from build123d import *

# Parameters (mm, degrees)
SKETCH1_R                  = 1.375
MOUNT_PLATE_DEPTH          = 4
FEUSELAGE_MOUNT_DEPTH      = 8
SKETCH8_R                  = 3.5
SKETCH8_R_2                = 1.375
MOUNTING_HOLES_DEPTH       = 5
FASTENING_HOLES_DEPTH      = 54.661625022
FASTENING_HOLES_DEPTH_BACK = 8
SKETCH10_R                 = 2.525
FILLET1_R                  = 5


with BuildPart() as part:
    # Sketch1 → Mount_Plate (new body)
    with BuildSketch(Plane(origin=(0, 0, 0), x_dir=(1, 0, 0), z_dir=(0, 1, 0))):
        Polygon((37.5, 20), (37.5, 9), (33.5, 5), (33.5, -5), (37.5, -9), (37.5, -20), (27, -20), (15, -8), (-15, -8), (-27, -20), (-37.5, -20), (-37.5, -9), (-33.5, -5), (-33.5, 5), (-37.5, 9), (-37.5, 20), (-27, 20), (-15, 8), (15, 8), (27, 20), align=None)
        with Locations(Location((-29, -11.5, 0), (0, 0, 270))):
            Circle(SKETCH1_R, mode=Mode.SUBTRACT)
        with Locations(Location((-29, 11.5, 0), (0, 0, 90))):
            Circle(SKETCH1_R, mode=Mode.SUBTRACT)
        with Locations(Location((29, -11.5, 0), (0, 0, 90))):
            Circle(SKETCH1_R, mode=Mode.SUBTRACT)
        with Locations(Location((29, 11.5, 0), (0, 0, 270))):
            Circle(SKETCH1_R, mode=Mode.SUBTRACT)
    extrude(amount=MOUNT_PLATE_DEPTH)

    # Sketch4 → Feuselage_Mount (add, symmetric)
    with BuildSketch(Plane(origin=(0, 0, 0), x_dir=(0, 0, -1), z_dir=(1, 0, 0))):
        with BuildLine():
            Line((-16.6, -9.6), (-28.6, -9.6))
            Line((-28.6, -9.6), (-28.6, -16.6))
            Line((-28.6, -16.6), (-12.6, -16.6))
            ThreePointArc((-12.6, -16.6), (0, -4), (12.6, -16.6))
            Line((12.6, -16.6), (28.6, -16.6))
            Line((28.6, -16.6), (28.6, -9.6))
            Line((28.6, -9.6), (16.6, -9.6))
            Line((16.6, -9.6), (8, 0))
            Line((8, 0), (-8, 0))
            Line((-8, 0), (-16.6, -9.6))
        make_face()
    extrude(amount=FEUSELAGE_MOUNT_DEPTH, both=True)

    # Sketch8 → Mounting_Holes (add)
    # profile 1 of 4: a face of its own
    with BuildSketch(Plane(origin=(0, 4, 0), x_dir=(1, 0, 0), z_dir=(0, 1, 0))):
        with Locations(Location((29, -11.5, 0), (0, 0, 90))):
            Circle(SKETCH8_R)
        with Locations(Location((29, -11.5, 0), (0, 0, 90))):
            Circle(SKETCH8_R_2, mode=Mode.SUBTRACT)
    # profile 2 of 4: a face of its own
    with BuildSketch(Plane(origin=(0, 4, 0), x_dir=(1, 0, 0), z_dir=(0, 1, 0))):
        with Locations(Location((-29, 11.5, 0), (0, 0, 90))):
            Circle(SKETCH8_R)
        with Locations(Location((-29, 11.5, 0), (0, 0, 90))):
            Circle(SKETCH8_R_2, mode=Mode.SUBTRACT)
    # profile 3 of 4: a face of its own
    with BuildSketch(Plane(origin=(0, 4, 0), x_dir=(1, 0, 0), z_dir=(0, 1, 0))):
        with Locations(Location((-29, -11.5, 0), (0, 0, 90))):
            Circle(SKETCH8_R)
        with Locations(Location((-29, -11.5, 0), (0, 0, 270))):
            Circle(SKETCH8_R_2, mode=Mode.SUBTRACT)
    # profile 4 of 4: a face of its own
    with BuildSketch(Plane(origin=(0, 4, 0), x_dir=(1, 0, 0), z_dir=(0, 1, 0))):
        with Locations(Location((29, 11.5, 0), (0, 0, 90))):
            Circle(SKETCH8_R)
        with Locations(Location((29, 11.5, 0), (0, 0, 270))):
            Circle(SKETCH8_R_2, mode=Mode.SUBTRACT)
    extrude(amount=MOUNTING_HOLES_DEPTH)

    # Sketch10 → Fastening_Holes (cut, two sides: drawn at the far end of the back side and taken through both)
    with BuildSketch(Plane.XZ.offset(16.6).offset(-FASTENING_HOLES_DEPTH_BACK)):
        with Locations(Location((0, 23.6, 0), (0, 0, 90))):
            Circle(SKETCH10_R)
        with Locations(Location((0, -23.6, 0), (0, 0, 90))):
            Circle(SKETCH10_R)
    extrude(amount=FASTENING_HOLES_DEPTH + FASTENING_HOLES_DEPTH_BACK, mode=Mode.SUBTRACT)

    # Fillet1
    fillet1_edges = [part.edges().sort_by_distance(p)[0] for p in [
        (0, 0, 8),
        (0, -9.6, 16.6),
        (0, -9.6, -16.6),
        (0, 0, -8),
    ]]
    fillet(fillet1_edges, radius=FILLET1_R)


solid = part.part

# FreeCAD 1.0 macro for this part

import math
import FreeCAD as App
import Part
import Sketcher
from FreeCAD import Vector


def edges_at(feature, points):
    """Names of the edges that pass closest to the given points."""
    edges = feature.Shape.Edges
    near = lambda p: min(range(len(edges)), key=lambda i: edges[i].distToShape(Part.Vertex(*p))[0])
    return sorted({f"Edge{near(p) + 1}" for p in points})

doc = App.newDocument("Part")
body = doc.addObject("PartDesign::Body", "Body")

# Sketch on XZ plane
sketch1 = body.newObject("Sketcher::SketchObject", "Sketch")
sketch1.AttachmentSupport = (doc.getObject("XZ_Plane"), [""])
sketch1.MapMode = "FlatFace"
sketch1.addGeometry([
    Part.LineSegment(Vector(37.5, -9, 0), Vector(37.5, -20, 0)),  # 0
    Part.LineSegment(Vector(37.5, -20, 0), Vector(27, -20, 0)),  # 1
    Part.LineSegment(Vector(27, -20, 0), Vector(15, -8, 0)),  # 2
    Part.LineSegment(Vector(15, -8, 0), Vector(-15, -8, 0)),  # 3
    Part.LineSegment(Vector(-15, -8, 0), Vector(-27, -20, 0)),  # 4
    Part.LineSegment(Vector(-27, -20, 0), Vector(-37.5, -20, 0)),  # 5
    Part.LineSegment(Vector(-37.5, -20, 0), Vector(-37.5, -9, 0)),  # 6
    Part.LineSegment(Vector(-37.5, -9, 0), Vector(-33.5, -5, 0)),  # 7
    Part.LineSegment(Vector(-33.5, -5, 0), Vector(-33.5, 5, 0)),  # 8
    Part.LineSegment(Vector(-33.5, 5, 0), Vector(-37.5, 9, 0)),  # 9
    Part.LineSegment(Vector(-37.5, 9, 0), Vector(-37.5, 20, 0)),  # 10
    Part.LineSegment(Vector(-37.5, 20, 0), Vector(-27, 20, 0)),  # 11
    Part.LineSegment(Vector(-27, 20, 0), Vector(-15, 8, 0)),  # 12
    Part.LineSegment(Vector(-15, 8, 0), Vector(15, 8, 0)),  # 13
    Part.LineSegment(Vector(15, 8, 0), Vector(27, 20, 0)),  # 14
    Part.LineSegment(Vector(27, 20, 0), Vector(37.5, 20, 0)),  # 15
    Part.LineSegment(Vector(37.5, 20, 0), Vector(37.5, 9, 0)),  # 16
    Part.LineSegment(Vector(37.5, 9, 0), Vector(33.5, 5, 0)),  # 17
    Part.LineSegment(Vector(33.5, 5, 0), Vector(33.5, -5, 0)),  # 18
    Part.LineSegment(Vector(33.5, -5, 0), Vector(37.5, -9, 0)),  # 19
    Part.Circle(Vector(29, 11.5, 0), Vector(0, 0, 1), 1.4),  # 20
    Part.Circle(Vector(-29, 11.5, 0), Vector(0, 0, 1), 1.4),  # 21
    Part.Circle(Vector(29, -11.5, 0), Vector(0, 0, 1), 1.4),  # 22
    Part.Circle(Vector(-29, -11.5, 0), Vector(0, 0, 1), 1.4),  # 23
], False)
sketch1.addConstraint([
    Sketcher.Constraint("Coincident", 0, 2, 1, 1),
    Sketcher.Constraint("Coincident", 1, 2, 2, 1),
    Sketcher.Constraint("Coincident", 2, 2, 3, 1),
    Sketcher.Constraint("Coincident", 3, 2, 4, 1),
    Sketcher.Constraint("Coincident", 4, 2, 5, 1),
    Sketcher.Constraint("Coincident", 5, 2, 6, 1),
    Sketcher.Constraint("Coincident", 6, 2, 7, 1),
    Sketcher.Constraint("Coincident", 7, 2, 8, 1),
    Sketcher.Constraint("Coincident", 8, 2, 9, 1),
    Sketcher.Constraint("Coincident", 9, 2, 10, 1),
    Sketcher.Constraint("Coincident", 10, 2, 11, 1),
    Sketcher.Constraint("Coincident", 11, 2, 12, 1),
    Sketcher.Constraint("Coincident", 12, 2, 13, 1),
    Sketcher.Constraint("Coincident", 13, 2, 14, 1),
    Sketcher.Constraint("Coincident", 14, 2, 15, 1),
    Sketcher.Constraint("Coincident", 15, 2, 16, 1),
    Sketcher.Constraint("Coincident", 16, 2, 17, 1),
    Sketcher.Constraint("Coincident", 17, 2, 18, 1),
    Sketcher.Constraint("Coincident", 18, 2, 19, 1),
    Sketcher.Constraint("Coincident", 19, 2, 0, 1),
    Sketcher.Constraint("Vertical", 0),
    Sketcher.Constraint("Horizontal", 1),
    Sketcher.Constraint("Horizontal", 3),
    Sketcher.Constraint("Horizontal", 5),
    Sketcher.Constraint("Vertical", 6),
    Sketcher.Constraint("Vertical", 8),
    Sketcher.Constraint("Vertical", 10),
    Sketcher.Constraint("Horizontal", 11),
    Sketcher.Constraint("Horizontal", 13),
    Sketcher.Constraint("Horizontal", 15),
    Sketcher.Constraint("Vertical", 16),
    Sketcher.Constraint("Vertical", 18),
    Sketcher.Constraint("Equal", 20, 21),
    Sketcher.Constraint("Equal", 21, 22),
    Sketcher.Constraint("Equal", 22, 23),
    Sketcher.Constraint("Symmetric", 21, 3, 22, 3, -1, 1),
    Sketcher.Constraint("Symmetric", 20, 3, 23, 3, -1, 1),
    Sketcher.Constraint("Symmetric", 0, 2, 10, 2, -1, 1),
    Sketcher.Constraint("Symmetric", 2, 2, 12, 2, -1, 1),
    Sketcher.Constraint("Symmetric", 4, 2, 14, 2, -1, 1),
    Sketcher.Constraint("Symmetric", 6, 2, 16, 2, -1, 1),
    Sketcher.Constraint("Symmetric", 7, 2, 17, 2, -1, 1),
    Sketcher.Constraint("Symmetric", 20, 3, 21, 3, -2),
    Sketcher.Constraint("Symmetric", 1, 2, 4, 2, -2),
    Sketcher.Constraint("Symmetric", 9, 2, 16, 2, -2),
    Sketcher.Constraint("Perpendicular", 2, 4),
    Sketcher.Constraint("Parallel", 4, 7),
    Sketcher.Constraint("Perpendicular", 7, 9),
    Sketcher.Constraint("Parallel", 9, 12),
    Sketcher.Constraint("Perpendicular", 12, 14),
    Sketcher.Constraint("Perpendicular", 17, 19),
    Sketcher.Constraint("Horizontal", 8, 2, 17, 2),
    Sketcher.Constraint("Horizontal", 7, 2, 18, 2),
    Sketcher.Constraint("Diameter", 20, 2.75),
    Sketcher.Constraint("DistanceX", 3, 2, 3, 1, 30.0),
    Sketcher.Constraint("DistanceY", 0, 2, 0, 1, 11.0),
    Sketcher.Constraint("DistanceY", 8, 1, 8, 2, 10.0),
    Sketcher.Constraint("DistanceX", 1, 2, 1, 1, 10.5),
    Sketcher.Constraint("DistanceX", -1, 1, 20, 3, 29.0),
    Sketcher.Constraint("DistanceY", 0, 2, -1, 1, 20.0),
    Sketcher.Constraint("DistanceX", -1, 1, 1, 2, 27.0),
    Sketcher.Constraint("DistanceY", 22, 3, 20, 3, 23.0),
])
pad1 = body.newObject("PartDesign::Pad", "Pad")
pad1.Profile = sketch1
pad1.Length = 4
pad1.Reversed = True

# Sketch on YZ plane
sketch2 = body.newObject("Sketcher::SketchObject", "Sketch001")
sketch2.AttachmentSupport = (doc.getObject("YZ_Plane"), [""])
sketch2.MapMode = "FlatFace"
sketch2.addGeometry([
    Part.LineSegment(Vector(-10, 17, 0), Vector(-10, 29, 0)),  # 0
    Part.LineSegment(Vector(-10, 29, 0), Vector(-17, 29, 0)),  # 1
    Part.LineSegment(Vector(-17, 29, 0), Vector(-17, 13, 0)),  # 2
    Part.ArcOfCircle(Part.Circle(Vector(-17, 0, 0), Vector(0, 0, 1), 13), math.radians(-90), math.radians(90)),  # 3
    Part.LineSegment(Vector(-17, -13, 0), Vector(-17, -29, 0)),  # 4
    Part.LineSegment(Vector(-17, -29, 0), Vector(-10, -29, 0)),  # 5
    Part.LineSegment(Vector(-10, -29, 0), Vector(-10, -17, 0)),  # 6
    Part.LineSegment(Vector(-10, -17, 0), Vector(0, -8, 0)),  # 7
    Part.LineSegment(Vector(0, -8, 0), Vector(0, 8, 0)),  # 8
    Part.LineSegment(Vector(0, 8, 0), Vector(-10, 17, 0)),  # 9
], False)
sketch2.addConstraint([
    Sketcher.Constraint("Coincident", 0, 2, 1, 1),
    Sketcher.Constraint("Coincident", 1, 2, 2, 1),
    Sketcher.Constraint("Coincident", 2, 2, 3, 2),
    Sketcher.Constraint("Coincident", 3, 1, 4, 1),
    Sketcher.Constraint("Coincident", 4, 2, 5, 1),
    Sketcher.Constraint("Coincident", 5, 2, 6, 1),
    Sketcher.Constraint("Coincident", 6, 2, 7, 1),
    Sketcher.Constraint("Coincident", 7, 2, 8, 1),
    Sketcher.Constraint("Coincident", 8, 2, 9, 1),
    Sketcher.Constraint("Coincident", 9, 2, 0, 1),
    Sketcher.Constraint("Vertical", 0),
    Sketcher.Constraint("Horizontal", 1),
    Sketcher.Constraint("Vertical", 2),
    Sketcher.Constraint("Vertical", 4),
    Sketcher.Constraint("Horizontal", 5),
    Sketcher.Constraint("Vertical", 6),
    Sketcher.Constraint("Vertical", 8),
    Sketcher.Constraint("Symmetric", 7, 2, 8, 2, -1, 1),
    Sketcher.Constraint("Symmetric", 2, 2, 3, 1, -1),
    Sketcher.Constraint("Symmetric", 0, 2, 5, 2, -1),
    Sketcher.Constraint("Vertical", 3, 3, 1, 2),
    Sketcher.Constraint("Equal", 0, 6),
    Sketcher.Constraint("Equal", 4, 8),
    Sketcher.Constraint("Radius", 3, 12.6),
    Sketcher.Constraint("DistanceX", 1, 2, 1, 1, 7.0),
    Sketcher.Constraint("DistanceY", 0, 1, 0, 2, 12.0),
    Sketcher.Constraint("DistanceY", 2, 2, 2, 1, 16.0),
    Sketcher.Constraint("DistanceX", 3, 3, -1, 1, 16.6),
])
pad2 = body.newObject("PartDesign::Pad", "Pad001")
pad2.Profile = sketch2
pad2.Length = 16
pad2.Midplane = True

# Sketch on XZ plane
sketch3 = body.newObject("Sketcher::SketchObject", "Sketch002")
sketch3.AttachmentSupport = (doc.getObject("XZ_Plane"), [""])
sketch3.MapMode = "FlatFace"
sketch3.AttachmentOffset = App.Placement(Vector(0, 0, -4), App.Rotation())
sketch3.addGeometry([
    Part.Circle(Vector(29, 11.5, 0), Vector(0, 0, 1), 3.5),  # 0
    Part.Circle(Vector(29, 11.5, 0), Vector(0, 0, 1), 1.4),  # 1
    Part.Circle(Vector(-29, -11.5, 0), Vector(0, 0, 1), 3.5),  # 2
    Part.Circle(Vector(-29, -11.5, 0), Vector(0, 0, 1), 1.4),  # 3
    Part.Circle(Vector(-29, 11.5, 0), Vector(0, 0, 1), 3.5),  # 4
    Part.Circle(Vector(-29, 11.5, 0), Vector(0, 0, 1), 1.4),  # 5
    Part.Circle(Vector(29, -11.5, 0), Vector(0, 0, 1), 3.5),  # 6
    Part.Circle(Vector(29, -11.5, 0), Vector(0, 0, 1), 1.4),  # 7
], False)
sketch3.addConstraint([
    Sketcher.Constraint("Coincident", 1, 3, 0, 3),
    Sketcher.Constraint("Coincident", 3, 3, 2, 3),
    Sketcher.Constraint("Coincident", 5, 3, 4, 3),
    Sketcher.Constraint("Coincident", 7, 3, 6, 3),
    Sketcher.Constraint("Equal", 0, 2),
    Sketcher.Constraint("Equal", 1, 3),
    Sketcher.Constraint("Equal", 2, 4),
    Sketcher.Constraint("Equal", 3, 5),
    Sketcher.Constraint("Equal", 4, 6),
    Sketcher.Constraint("Equal", 5, 7),
    Sketcher.Constraint("Symmetric", 0, 3, 2, 3, -1, 1),
    Sketcher.Constraint("Symmetric", 4, 3, 6, 3, -1, 1),
    Sketcher.Constraint("Symmetric", 0, 3, 4, 3, -2),
    Sketcher.Constraint("Diameter", 0, 7.0),
    Sketcher.Constraint("Diameter", 1, 2.75),
    Sketcher.Constraint("DistanceX", -1, 1, 0, 3, 29.0),
    Sketcher.Constraint("DistanceY", 2, 3, 0, 3, 23.0),
])
pad3 = body.newObject("PartDesign::Pad", "Pad002")
pad3.Profile = sketch3
pad3.Length = 5
pad3.Reversed = True

# Sketch on XZ plane
sketch4 = body.newObject("Sketcher::SketchObject", "Sketch003")
sketch4.AttachmentSupport = (doc.getObject("XZ_Plane"), [""])
sketch4.MapMode = "FlatFace"
sketch4.AttachmentOffset = App.Placement(Vector(0, 0, 16.6), App.Rotation())
sketch4.addGeometry([
    Part.Circle(Vector(0, 23.6, 0), Vector(0, 0, 1), 2.5),
    Part.Circle(Vector(0, -23.6, 0), Vector(0, 0, 1), 2.5),
], False)
sketch4.addConstraint([
    Sketcher.Constraint("Equal", 0, 1),
    Sketcher.Constraint("Symmetric", 0, 3, 1, 3, -1, 1),
    Sketcher.Constraint("PointOnObject", 0, 3, -2),
    Sketcher.Constraint("Diameter", 0, 5.05),
    Sketcher.Constraint("DistanceY", -1, 1, 0, 3, 23.6),
])
pocket1 = body.newObject("PartDesign::Pocket", "Pocket")
pocket1.Profile = sketch4
pocket1.Type = "ThroughAll"
pocket1.Midplane = True
doc.recompute()

fillet = body.newObject("PartDesign::Fillet", "Fillet")
fillet.Base = (pocket1, edges_at(pocket1, [
    (0, 0, 8),
    (0, -9.6, 16.6),
    (0, -9.6, -16.6),
    (0, 0, -8),
]))
fillet.Radius = 5

doc.recompute()
